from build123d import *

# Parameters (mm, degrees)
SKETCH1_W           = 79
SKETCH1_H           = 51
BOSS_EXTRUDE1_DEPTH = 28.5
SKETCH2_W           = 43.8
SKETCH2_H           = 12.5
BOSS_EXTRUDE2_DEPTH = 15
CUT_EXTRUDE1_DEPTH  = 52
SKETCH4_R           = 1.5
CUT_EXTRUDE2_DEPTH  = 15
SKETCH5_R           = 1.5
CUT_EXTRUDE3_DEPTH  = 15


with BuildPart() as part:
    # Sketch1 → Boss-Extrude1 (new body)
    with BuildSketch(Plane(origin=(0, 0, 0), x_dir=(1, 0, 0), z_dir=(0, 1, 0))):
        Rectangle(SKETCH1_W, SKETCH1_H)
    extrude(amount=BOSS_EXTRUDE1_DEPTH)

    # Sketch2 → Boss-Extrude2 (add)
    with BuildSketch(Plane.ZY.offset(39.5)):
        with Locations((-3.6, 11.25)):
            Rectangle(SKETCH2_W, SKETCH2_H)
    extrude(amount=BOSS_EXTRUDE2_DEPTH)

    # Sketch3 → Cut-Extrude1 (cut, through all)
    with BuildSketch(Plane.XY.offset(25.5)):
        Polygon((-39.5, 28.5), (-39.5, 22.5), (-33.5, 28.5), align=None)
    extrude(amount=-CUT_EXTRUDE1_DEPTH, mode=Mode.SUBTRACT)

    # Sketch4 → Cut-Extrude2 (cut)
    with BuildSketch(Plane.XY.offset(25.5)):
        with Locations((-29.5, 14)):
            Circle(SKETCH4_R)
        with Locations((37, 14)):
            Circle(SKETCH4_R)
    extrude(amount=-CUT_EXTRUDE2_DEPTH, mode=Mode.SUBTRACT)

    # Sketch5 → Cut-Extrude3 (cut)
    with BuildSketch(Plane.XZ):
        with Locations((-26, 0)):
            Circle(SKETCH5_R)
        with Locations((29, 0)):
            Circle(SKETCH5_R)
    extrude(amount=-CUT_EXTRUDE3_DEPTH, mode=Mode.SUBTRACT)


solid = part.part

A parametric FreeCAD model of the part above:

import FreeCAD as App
import Part
import Sketcher
Q = App.Units.Quantity


def add_polygon(sketch, points):
    """Adds a closed chain of lines whose ends are joined by coincident constraints."""
    first, n = sketch.GeometryCount, len(points)
    for a, b in zip(points, points[1:] + points[:1]):
        sketch.addGeometry(Part.LineSegment(App.Vector(*a, 0), App.Vector(*b, 0)), False)
    for i in range(n):
        sketch.addConstraint(Sketcher.Constraint("Coincident", first + i, 2, first + (i + 1) % n, 1))

doc = App.newDocument("Part")
params = doc.addObject("Spreadsheet::Sheet", "Params")
for row, (alias, value) in enumerate([
    ("sketch1_width", "79 mm"),
    ("sketch1_height", "51 mm"),
    ("pad1_length", "28.5 mm"),
    ("sketch2_width", "12.5 mm"),
    ("sketch2_height", "43.8 mm"),
    ("pad2_length", "15 mm"),
    ("sketch3_width", "6 mm"),
    ("sketch4_diameter", "3 mm"),
    ("pocket2_length", "15 mm"),
    ("sketch5_diameter", "3 mm"),
    ("pocket3_length", "15 mm"),
], start=1):
    params.set(f"A{row}", alias)
    params.set(f"B{row}", "=" + value)
    params.setAlias(f"B{row}", alias)

body = doc.addObject("PartDesign::Body", "Body")

sketch1 = body.newObject("Sketcher::SketchObject", "Sketch")
sketch1.AttachmentSupport = (doc.getObject("XZ_Plane"), [""])
sketch1.MapMode = "FlatFace"
add_polygon(sketch1, [(-40, -26), (-40, 26), (40, 26), (40, -26)])
sketch1.addConstraint(Sketcher.Constraint("Vertical", 0))
sketch1.addConstraint(Sketcher.Constraint("Horizontal", 1))
sketch1.addConstraint(Sketcher.Constraint("Vertical", 2))
sketch1.addConstraint(Sketcher.Constraint("Horizontal", 3))
sketch1.addConstraint(Sketcher.Constraint("Symmetric", 0, 2, 2, 2, -1, 1))
sketch1.addConstraint(Sketcher.Constraint("DistanceX", 1, 1, 1, 2, Q("79 mm")))
sketch1.addConstraint(Sketcher.Constraint("DistanceY", 0, 1, 0, 2, Q("51 mm")))
sketch1.setExpression("Constraints[9]", "Params.sketch1_width")
sketch1.setExpression("Constraints[10]", "Params.sketch1_height")
pad1 = body.newObject("PartDesign::Pad", "Pad")
pad1.Profile = sketch1
pad1.setExpression("Length", "Params.pad1_length")
pad1.Reversed = True

sketch2 = body.newObject("Sketcher::SketchObject", "Sketch001")
sketch2.AttachmentSupport = (doc.getObject("YZ_Plane"), [""])
sketch2.MapMode = "FlatFace"
sketch2.AttachmentOffset = App.Placement(App.Vector(0, 0, -39.5), App.Rotation())
add_polygon(sketch2, [(18, -26), (5, -26), (5, 18), (18, 18)])
sketch2.addConstraint(Sketcher.Constraint("Horizontal", 0))
sketch2.addConstraint(Sketcher.Constraint("Vertical", 1))
sketch2.addConstraint(Sketcher.Constraint("Horizontal", 2))
sketch2.addConstraint(Sketcher.Constraint("Vertical", 3))
sketch2.addConstraint(Sketcher.Constraint("DistanceX", 0, 2, 0, 1, Q("12.5 mm")))
sketch2.addConstraint(Sketcher.Constraint("DistanceY", 1, 1, 1, 2, Q("43.8 mm")))
sketch2.addConstraint(Sketcher.Constraint("DistanceX", -1, 1, 0, 2, Q("5 mm")))
sketch2.addConstraint(Sketcher.Constraint("DistanceY", 0, 2, -1, 1, Q("25.5 mm")))
sketch2.setExpression("Constraints[8]", "Params.sketch2_width")
sketch2.setExpression("Constraints[9]", "Params.sketch2_height")
pad2 = body.newObject("PartDesign::Pad", "Pad001")
pad2.Profile = sketch2
pad2.setExpression("Length", "Params.pad2_length")
pad2.Reversed = True

sketch3 = body.newObject("Sketcher::SketchObject", "Sketch002")
sketch3.AttachmentSupport = (doc.getObject("XY_Plane"), [""])
sketch3.MapMode = "FlatFace"
sketch3.AttachmentOffset = App.Placement(App.Vector(0, 0, 25.5), App.Rotation())
add_polygon(sketch3, [(-40, 28), (-40, 22), (-34, 28)])
sketch3.addConstraint(Sketcher.Constraint("Vertical", 0))
sketch3.addConstraint(Sketcher.Constraint("Horizontal", 2))
sketch3.addConstraint(Sketcher.Constraint("Equal", 2, 0))
sketch3.addConstraint(Sketcher.Constraint("DistanceX", 2, 2, 2, 1, Q("6 mm")))
sketch3.addConstraint(Sketcher.Constraint("DistanceX", 0, 2, -1, 1, Q("39.5 mm")))
sketch3.addConstraint(Sketcher.Constraint("DistanceY", -1, 1, 0, 2, Q("22.5 mm")))
sketch3.setExpression("Constraints[6]", "Params.sketch3_width")
pocket1 = body.newObject("PartDesign::Pocket", "Pocket")
pocket1.Profile = sketch3
pocket1.Type = "ThroughAll"

sketch4 = body.newObject("Sketcher::SketchObject", "Sketch003")
sketch4.AttachmentSupport = (doc.getObject("XY_Plane"), [""])
sketch4.MapMode = "FlatFace"
sketch4.AttachmentOffset = App.Placement(App.Vector(0, 0, 25.5), App.Rotation())
sketch4.addGeometry(Part.Circle(App.Vector(-29.5, 14, 0), App.Vector(0, 0, 1), 1.5), False)
sketch4.addGeometry(Part.Circle(App.Vector(37, 14, 0), App.Vector(0, 0, 1), 1.5), False)
sketch4.addConstraint(Sketcher.Constraint("Equal", 0, 1))
sketch4.addConstraint(Sketcher.Constraint("Horizontal", 0, 3, 1, 3))
sketch4.addConstraint(Sketcher.Constraint("Diameter", 0, Q("3 mm")))
sketch4.addConstraint(Sketcher.Constraint("DistanceY", -1, 1, 0, 3, Q("14 mm")))
sketch4.addConstraint(Sketcher.Constraint("DistanceX", -1, 1, 1, 3, Q("37 mm")))
sketch4.addConstraint(Sketcher.Constraint("DistanceX", 0, 3, -1, 1, Q("29.5 mm")))
sketch4.setExpression("Constraints[2]", "Params.sketch4_diameter")
pocket2 = body.newObject("PartDesign::Pocket", "Pocket001")
pocket2.Profile = sketch4
pocket2.setExpression("Length", "Params.pocket2_length")

sketch5 = body.newObject("Sketcher::SketchObject", "Sketch004")
sketch5.AttachmentSupport = (doc.getObject("XZ_Plane"), [""])
sketch5.MapMode = "FlatFace"
sketch5.addGeometry(Part.Circle(App.Vector(-26, 0, 0), App.Vector(0, 0, 1), 1.5), False)
sketch5.addGeometry(Part.Circle(App.Vector(29, 0, 0), App.Vector(0, 0, 1), 1.5), False)
sketch5.addConstraint(Sketcher.Constraint("Equal", 0, 1))
sketch5.addConstraint(Sketcher.Constraint("PointOnObject", 0, 3, -1))
sketch5.addConstraint(Sketcher.Constraint("PointOnObject", 1, 3, -1))
sketch5.addConstraint(Sketcher.Constraint("Diameter", 0, Q("3 mm")))
sketch5.addConstraint(Sketcher.Constraint("DistanceX", 0, 3, -1, 1, Q("26 mm")))
sketch5.addConstraint(Sketcher.Constraint("DistanceX", -1, 1, 1, 3, Q("29 mm")))
sketch5.setExpression("Constraints[3]", "Params.sketch5_diameter")
pocket3 = body.newObject("PartDesign::Pocket", "Pocket002")
pocket3.Profile = sketch5
pocket3.setExpression("Length", "Params.pocket3_length")

doc.recompute()
